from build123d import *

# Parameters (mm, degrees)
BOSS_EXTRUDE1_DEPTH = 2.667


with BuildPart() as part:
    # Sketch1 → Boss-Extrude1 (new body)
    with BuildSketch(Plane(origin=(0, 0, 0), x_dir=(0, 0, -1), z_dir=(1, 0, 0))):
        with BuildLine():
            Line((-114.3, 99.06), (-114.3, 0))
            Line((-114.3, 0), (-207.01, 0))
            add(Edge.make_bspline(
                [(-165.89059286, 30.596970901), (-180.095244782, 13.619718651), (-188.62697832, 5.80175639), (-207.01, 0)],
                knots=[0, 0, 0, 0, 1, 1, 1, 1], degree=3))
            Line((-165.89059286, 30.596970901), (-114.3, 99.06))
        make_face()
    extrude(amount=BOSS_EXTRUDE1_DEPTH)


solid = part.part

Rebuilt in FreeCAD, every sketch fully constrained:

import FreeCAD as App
import Part
import Sketcher

V = App.Vector
Q = App.Units.Quantity

doc = App.newDocument("Part")
body = doc.addObject("PartDesign::Body", "Body")

sketch1 = body.newObject("Sketcher::SketchObject", "Sketch")
sketch1.AttachmentSupport = (doc.getObject("YZ_Plane"), [""])
sketch1.MapMode = "FlatFace"
sketch1.addGeometry([
    Part.LineSegment(V(0, 114.3, 0), V(99.06, 114.3, 0)),
    Part.LineSegment(V(99.06, 114.3, 0), V(30.596971, 165.890593, 0)),
    Part.BSplineCurve([V(30.596971, 165.890593, 0), V(13.619719, 180.095245, 0), V(5.801756, 188.626978, 0), V(0, 207.01, 0)], [4, 4], [0, 1], False, 3, [1, 1, 1, 1], False),
    Part.LineSegment(V(0, 207.01, 0), V(0, 114.3, 0)),
], False)
sketch1.addConstraint([
    Sketcher.Constraint("Block", 2),
    Sketcher.Constraint("Coincident", 0, 2, 1, 1),
    Sketcher.Constraint("Coincident", 1, 2, 2, 1),
    Sketcher.Constraint("Coincident", 2, 2, 3, 1),
    Sketcher.Constraint("Coincident", 3, 2, 0, 1),
    Sketcher.Constraint("Horizontal", 0),
    Sketcher.Constraint("Vertical", 3),
    Sketcher.Constraint("DistanceX", 0, 1, 0, 2, Q("3.9 in")),
    Sketcher.Constraint("Angle", 1, Q("143 deg")),
])
pad1 = body.newObject("PartDesign::Pad", "Pad")
pad1.Profile = sketch1
pad1.Length = Q("0.105 in")

doc.recompute()
